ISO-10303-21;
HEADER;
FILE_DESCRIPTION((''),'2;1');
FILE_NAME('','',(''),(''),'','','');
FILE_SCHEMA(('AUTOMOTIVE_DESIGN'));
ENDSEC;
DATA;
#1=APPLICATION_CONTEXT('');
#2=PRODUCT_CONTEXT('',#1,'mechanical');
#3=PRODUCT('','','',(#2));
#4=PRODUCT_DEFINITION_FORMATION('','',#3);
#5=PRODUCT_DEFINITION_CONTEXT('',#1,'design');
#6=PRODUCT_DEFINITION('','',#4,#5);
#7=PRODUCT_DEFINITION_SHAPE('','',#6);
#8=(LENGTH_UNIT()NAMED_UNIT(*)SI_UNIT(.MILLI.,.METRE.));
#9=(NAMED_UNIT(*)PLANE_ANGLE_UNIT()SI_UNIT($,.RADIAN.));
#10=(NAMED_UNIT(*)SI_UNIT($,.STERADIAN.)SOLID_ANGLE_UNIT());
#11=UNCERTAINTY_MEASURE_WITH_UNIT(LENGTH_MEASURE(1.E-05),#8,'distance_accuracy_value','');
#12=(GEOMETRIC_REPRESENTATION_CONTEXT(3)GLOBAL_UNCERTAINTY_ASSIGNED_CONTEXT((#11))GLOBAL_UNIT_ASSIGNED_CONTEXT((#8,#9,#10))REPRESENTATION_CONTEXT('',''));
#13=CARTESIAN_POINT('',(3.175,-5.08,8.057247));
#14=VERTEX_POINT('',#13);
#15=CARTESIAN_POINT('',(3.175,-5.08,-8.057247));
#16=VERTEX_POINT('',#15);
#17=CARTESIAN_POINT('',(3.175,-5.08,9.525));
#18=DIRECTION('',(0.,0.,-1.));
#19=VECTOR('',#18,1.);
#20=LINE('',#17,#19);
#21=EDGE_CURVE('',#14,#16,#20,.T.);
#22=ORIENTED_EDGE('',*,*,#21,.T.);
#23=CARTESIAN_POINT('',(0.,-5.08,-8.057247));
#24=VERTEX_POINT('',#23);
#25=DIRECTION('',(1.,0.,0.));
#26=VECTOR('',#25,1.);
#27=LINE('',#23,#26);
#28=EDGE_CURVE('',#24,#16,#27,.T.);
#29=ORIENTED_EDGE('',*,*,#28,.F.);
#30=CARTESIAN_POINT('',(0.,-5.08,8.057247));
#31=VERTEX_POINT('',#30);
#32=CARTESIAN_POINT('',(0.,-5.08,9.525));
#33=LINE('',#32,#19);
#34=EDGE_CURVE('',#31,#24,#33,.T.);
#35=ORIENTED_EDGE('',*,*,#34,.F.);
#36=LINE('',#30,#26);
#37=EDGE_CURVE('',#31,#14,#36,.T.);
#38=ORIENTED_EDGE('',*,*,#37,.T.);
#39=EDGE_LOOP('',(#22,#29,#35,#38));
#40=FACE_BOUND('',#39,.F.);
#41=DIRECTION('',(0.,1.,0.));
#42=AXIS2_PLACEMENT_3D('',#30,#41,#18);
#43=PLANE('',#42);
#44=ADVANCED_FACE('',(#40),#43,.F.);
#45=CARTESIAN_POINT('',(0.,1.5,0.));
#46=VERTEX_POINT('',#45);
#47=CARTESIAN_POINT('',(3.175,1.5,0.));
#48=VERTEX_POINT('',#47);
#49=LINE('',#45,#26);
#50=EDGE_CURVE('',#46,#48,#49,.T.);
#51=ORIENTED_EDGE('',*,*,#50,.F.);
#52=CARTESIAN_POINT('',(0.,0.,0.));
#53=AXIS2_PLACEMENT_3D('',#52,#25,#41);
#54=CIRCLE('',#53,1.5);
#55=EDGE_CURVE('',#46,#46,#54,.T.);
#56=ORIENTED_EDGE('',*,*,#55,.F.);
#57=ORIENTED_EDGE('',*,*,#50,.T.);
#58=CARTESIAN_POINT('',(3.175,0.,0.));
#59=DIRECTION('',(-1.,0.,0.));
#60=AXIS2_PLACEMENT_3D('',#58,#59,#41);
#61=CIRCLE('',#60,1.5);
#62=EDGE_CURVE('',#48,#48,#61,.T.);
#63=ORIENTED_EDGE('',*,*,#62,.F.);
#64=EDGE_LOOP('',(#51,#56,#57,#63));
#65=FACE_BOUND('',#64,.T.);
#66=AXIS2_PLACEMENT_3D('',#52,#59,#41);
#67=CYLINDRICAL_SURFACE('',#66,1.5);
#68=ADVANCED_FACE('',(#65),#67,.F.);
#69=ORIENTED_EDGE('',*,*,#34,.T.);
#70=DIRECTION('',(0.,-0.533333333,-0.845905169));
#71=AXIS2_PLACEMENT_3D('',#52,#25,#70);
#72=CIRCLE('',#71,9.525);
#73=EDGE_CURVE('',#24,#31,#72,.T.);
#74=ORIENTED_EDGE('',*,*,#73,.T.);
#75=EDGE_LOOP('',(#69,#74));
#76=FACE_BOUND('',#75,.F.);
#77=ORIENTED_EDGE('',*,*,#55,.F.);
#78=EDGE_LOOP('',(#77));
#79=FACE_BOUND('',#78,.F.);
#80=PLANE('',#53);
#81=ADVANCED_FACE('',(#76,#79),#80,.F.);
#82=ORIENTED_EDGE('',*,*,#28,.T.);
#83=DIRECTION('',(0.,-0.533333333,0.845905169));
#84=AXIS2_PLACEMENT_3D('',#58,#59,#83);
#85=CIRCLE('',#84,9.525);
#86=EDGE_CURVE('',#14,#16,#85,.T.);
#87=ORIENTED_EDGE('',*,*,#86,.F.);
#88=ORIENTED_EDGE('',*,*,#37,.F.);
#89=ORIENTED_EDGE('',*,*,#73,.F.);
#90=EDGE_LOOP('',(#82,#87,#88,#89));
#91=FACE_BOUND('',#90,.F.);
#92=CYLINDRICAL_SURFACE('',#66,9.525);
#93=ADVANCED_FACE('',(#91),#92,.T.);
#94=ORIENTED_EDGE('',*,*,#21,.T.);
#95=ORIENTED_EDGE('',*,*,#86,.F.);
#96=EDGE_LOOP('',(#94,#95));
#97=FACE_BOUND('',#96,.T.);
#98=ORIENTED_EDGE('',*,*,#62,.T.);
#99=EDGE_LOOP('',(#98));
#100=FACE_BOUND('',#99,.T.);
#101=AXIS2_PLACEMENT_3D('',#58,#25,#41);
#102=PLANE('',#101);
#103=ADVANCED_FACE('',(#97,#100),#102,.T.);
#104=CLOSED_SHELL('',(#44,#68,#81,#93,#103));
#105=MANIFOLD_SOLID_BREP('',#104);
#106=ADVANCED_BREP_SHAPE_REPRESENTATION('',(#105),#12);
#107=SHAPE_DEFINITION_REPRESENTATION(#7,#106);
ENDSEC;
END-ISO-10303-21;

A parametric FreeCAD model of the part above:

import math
import FreeCAD as App
import Part
import Sketcher
from FreeCAD import Vector
Q = App.Units.Quantity

doc = App.newDocument("Part")
params = doc.addObject("Spreadsheet::Sheet", "Params")
for row, (alias, value) in enumerate([
    ("sketch1_radius", "0.375 in"),
    ("pad1_length", "0.125 in"),
], start=1):
    params.set(f"A{row}", alias)
    params.set(f"B{row}", "=" + value)
    params.setAlias(f"B{row}", alias)

body = doc.addObject("PartDesign::Body", "Body")

# Sketch on YZ plane
sketch1 = doc.addObject("Sketcher::SketchObject", "Sketch")
body.addObject(sketch1)
sketch1.AttachmentSupport = (doc.YZ_Plane, [""])
sketch1.MapMode = "FlatFace"
sketch1.addGeometry(Part.LineSegment(Vector(-5.1, 8.1, 0), Vector(-5.1, -8.1, 0)), False)
sketch1.addGeometry(Part.ArcOfCircle(Part.Circle(Vector(0, 0, 0), Vector(0, 0, 1), 9.5), math.radians(-122), math.radians(122)), False)
sketch1.addGeometry(Part.Circle(Vector(0, 0, 0), Vector(0, 0, 1), 1.5), False)
sketch1.addConstraint(Sketcher.Constraint("Coincident", 0, 1, 1, 2))
sketch1.addConstraint(Sketcher.Constraint("Coincident", 1, 1, 0, 2))
sketch1.addConstraint(Sketcher.Constraint("Vertical", 0))
sketch1.addConstraint(Sketcher.Constraint("Coincident", 1, 3, -1, 1))
sketch1.addConstraint(Sketcher.Constraint("Coincident", 2, 3, -1, 1))
sketch1.addConstraint(Sketcher.Constraint("Radius", 1, Q("0.375 in")))
sketch1.addConstraint(Sketcher.Constraint("Diameter", 2, Q("0.1181 in")))
sketch1.addConstraint(Sketcher.Constraint("DistanceX", 0, 1, -1, 1, Q("0.2 in")))
sketch1.setExpression("Constraints[5]", "Params.sketch1_radius")
pad1 = doc.addObject("PartDesign::Pad", "Pad")
body.addObject(pad1)
pad1.Profile = sketch1
pad1.setExpression("Length", "Params.pad1_length")

doc.recompute()
